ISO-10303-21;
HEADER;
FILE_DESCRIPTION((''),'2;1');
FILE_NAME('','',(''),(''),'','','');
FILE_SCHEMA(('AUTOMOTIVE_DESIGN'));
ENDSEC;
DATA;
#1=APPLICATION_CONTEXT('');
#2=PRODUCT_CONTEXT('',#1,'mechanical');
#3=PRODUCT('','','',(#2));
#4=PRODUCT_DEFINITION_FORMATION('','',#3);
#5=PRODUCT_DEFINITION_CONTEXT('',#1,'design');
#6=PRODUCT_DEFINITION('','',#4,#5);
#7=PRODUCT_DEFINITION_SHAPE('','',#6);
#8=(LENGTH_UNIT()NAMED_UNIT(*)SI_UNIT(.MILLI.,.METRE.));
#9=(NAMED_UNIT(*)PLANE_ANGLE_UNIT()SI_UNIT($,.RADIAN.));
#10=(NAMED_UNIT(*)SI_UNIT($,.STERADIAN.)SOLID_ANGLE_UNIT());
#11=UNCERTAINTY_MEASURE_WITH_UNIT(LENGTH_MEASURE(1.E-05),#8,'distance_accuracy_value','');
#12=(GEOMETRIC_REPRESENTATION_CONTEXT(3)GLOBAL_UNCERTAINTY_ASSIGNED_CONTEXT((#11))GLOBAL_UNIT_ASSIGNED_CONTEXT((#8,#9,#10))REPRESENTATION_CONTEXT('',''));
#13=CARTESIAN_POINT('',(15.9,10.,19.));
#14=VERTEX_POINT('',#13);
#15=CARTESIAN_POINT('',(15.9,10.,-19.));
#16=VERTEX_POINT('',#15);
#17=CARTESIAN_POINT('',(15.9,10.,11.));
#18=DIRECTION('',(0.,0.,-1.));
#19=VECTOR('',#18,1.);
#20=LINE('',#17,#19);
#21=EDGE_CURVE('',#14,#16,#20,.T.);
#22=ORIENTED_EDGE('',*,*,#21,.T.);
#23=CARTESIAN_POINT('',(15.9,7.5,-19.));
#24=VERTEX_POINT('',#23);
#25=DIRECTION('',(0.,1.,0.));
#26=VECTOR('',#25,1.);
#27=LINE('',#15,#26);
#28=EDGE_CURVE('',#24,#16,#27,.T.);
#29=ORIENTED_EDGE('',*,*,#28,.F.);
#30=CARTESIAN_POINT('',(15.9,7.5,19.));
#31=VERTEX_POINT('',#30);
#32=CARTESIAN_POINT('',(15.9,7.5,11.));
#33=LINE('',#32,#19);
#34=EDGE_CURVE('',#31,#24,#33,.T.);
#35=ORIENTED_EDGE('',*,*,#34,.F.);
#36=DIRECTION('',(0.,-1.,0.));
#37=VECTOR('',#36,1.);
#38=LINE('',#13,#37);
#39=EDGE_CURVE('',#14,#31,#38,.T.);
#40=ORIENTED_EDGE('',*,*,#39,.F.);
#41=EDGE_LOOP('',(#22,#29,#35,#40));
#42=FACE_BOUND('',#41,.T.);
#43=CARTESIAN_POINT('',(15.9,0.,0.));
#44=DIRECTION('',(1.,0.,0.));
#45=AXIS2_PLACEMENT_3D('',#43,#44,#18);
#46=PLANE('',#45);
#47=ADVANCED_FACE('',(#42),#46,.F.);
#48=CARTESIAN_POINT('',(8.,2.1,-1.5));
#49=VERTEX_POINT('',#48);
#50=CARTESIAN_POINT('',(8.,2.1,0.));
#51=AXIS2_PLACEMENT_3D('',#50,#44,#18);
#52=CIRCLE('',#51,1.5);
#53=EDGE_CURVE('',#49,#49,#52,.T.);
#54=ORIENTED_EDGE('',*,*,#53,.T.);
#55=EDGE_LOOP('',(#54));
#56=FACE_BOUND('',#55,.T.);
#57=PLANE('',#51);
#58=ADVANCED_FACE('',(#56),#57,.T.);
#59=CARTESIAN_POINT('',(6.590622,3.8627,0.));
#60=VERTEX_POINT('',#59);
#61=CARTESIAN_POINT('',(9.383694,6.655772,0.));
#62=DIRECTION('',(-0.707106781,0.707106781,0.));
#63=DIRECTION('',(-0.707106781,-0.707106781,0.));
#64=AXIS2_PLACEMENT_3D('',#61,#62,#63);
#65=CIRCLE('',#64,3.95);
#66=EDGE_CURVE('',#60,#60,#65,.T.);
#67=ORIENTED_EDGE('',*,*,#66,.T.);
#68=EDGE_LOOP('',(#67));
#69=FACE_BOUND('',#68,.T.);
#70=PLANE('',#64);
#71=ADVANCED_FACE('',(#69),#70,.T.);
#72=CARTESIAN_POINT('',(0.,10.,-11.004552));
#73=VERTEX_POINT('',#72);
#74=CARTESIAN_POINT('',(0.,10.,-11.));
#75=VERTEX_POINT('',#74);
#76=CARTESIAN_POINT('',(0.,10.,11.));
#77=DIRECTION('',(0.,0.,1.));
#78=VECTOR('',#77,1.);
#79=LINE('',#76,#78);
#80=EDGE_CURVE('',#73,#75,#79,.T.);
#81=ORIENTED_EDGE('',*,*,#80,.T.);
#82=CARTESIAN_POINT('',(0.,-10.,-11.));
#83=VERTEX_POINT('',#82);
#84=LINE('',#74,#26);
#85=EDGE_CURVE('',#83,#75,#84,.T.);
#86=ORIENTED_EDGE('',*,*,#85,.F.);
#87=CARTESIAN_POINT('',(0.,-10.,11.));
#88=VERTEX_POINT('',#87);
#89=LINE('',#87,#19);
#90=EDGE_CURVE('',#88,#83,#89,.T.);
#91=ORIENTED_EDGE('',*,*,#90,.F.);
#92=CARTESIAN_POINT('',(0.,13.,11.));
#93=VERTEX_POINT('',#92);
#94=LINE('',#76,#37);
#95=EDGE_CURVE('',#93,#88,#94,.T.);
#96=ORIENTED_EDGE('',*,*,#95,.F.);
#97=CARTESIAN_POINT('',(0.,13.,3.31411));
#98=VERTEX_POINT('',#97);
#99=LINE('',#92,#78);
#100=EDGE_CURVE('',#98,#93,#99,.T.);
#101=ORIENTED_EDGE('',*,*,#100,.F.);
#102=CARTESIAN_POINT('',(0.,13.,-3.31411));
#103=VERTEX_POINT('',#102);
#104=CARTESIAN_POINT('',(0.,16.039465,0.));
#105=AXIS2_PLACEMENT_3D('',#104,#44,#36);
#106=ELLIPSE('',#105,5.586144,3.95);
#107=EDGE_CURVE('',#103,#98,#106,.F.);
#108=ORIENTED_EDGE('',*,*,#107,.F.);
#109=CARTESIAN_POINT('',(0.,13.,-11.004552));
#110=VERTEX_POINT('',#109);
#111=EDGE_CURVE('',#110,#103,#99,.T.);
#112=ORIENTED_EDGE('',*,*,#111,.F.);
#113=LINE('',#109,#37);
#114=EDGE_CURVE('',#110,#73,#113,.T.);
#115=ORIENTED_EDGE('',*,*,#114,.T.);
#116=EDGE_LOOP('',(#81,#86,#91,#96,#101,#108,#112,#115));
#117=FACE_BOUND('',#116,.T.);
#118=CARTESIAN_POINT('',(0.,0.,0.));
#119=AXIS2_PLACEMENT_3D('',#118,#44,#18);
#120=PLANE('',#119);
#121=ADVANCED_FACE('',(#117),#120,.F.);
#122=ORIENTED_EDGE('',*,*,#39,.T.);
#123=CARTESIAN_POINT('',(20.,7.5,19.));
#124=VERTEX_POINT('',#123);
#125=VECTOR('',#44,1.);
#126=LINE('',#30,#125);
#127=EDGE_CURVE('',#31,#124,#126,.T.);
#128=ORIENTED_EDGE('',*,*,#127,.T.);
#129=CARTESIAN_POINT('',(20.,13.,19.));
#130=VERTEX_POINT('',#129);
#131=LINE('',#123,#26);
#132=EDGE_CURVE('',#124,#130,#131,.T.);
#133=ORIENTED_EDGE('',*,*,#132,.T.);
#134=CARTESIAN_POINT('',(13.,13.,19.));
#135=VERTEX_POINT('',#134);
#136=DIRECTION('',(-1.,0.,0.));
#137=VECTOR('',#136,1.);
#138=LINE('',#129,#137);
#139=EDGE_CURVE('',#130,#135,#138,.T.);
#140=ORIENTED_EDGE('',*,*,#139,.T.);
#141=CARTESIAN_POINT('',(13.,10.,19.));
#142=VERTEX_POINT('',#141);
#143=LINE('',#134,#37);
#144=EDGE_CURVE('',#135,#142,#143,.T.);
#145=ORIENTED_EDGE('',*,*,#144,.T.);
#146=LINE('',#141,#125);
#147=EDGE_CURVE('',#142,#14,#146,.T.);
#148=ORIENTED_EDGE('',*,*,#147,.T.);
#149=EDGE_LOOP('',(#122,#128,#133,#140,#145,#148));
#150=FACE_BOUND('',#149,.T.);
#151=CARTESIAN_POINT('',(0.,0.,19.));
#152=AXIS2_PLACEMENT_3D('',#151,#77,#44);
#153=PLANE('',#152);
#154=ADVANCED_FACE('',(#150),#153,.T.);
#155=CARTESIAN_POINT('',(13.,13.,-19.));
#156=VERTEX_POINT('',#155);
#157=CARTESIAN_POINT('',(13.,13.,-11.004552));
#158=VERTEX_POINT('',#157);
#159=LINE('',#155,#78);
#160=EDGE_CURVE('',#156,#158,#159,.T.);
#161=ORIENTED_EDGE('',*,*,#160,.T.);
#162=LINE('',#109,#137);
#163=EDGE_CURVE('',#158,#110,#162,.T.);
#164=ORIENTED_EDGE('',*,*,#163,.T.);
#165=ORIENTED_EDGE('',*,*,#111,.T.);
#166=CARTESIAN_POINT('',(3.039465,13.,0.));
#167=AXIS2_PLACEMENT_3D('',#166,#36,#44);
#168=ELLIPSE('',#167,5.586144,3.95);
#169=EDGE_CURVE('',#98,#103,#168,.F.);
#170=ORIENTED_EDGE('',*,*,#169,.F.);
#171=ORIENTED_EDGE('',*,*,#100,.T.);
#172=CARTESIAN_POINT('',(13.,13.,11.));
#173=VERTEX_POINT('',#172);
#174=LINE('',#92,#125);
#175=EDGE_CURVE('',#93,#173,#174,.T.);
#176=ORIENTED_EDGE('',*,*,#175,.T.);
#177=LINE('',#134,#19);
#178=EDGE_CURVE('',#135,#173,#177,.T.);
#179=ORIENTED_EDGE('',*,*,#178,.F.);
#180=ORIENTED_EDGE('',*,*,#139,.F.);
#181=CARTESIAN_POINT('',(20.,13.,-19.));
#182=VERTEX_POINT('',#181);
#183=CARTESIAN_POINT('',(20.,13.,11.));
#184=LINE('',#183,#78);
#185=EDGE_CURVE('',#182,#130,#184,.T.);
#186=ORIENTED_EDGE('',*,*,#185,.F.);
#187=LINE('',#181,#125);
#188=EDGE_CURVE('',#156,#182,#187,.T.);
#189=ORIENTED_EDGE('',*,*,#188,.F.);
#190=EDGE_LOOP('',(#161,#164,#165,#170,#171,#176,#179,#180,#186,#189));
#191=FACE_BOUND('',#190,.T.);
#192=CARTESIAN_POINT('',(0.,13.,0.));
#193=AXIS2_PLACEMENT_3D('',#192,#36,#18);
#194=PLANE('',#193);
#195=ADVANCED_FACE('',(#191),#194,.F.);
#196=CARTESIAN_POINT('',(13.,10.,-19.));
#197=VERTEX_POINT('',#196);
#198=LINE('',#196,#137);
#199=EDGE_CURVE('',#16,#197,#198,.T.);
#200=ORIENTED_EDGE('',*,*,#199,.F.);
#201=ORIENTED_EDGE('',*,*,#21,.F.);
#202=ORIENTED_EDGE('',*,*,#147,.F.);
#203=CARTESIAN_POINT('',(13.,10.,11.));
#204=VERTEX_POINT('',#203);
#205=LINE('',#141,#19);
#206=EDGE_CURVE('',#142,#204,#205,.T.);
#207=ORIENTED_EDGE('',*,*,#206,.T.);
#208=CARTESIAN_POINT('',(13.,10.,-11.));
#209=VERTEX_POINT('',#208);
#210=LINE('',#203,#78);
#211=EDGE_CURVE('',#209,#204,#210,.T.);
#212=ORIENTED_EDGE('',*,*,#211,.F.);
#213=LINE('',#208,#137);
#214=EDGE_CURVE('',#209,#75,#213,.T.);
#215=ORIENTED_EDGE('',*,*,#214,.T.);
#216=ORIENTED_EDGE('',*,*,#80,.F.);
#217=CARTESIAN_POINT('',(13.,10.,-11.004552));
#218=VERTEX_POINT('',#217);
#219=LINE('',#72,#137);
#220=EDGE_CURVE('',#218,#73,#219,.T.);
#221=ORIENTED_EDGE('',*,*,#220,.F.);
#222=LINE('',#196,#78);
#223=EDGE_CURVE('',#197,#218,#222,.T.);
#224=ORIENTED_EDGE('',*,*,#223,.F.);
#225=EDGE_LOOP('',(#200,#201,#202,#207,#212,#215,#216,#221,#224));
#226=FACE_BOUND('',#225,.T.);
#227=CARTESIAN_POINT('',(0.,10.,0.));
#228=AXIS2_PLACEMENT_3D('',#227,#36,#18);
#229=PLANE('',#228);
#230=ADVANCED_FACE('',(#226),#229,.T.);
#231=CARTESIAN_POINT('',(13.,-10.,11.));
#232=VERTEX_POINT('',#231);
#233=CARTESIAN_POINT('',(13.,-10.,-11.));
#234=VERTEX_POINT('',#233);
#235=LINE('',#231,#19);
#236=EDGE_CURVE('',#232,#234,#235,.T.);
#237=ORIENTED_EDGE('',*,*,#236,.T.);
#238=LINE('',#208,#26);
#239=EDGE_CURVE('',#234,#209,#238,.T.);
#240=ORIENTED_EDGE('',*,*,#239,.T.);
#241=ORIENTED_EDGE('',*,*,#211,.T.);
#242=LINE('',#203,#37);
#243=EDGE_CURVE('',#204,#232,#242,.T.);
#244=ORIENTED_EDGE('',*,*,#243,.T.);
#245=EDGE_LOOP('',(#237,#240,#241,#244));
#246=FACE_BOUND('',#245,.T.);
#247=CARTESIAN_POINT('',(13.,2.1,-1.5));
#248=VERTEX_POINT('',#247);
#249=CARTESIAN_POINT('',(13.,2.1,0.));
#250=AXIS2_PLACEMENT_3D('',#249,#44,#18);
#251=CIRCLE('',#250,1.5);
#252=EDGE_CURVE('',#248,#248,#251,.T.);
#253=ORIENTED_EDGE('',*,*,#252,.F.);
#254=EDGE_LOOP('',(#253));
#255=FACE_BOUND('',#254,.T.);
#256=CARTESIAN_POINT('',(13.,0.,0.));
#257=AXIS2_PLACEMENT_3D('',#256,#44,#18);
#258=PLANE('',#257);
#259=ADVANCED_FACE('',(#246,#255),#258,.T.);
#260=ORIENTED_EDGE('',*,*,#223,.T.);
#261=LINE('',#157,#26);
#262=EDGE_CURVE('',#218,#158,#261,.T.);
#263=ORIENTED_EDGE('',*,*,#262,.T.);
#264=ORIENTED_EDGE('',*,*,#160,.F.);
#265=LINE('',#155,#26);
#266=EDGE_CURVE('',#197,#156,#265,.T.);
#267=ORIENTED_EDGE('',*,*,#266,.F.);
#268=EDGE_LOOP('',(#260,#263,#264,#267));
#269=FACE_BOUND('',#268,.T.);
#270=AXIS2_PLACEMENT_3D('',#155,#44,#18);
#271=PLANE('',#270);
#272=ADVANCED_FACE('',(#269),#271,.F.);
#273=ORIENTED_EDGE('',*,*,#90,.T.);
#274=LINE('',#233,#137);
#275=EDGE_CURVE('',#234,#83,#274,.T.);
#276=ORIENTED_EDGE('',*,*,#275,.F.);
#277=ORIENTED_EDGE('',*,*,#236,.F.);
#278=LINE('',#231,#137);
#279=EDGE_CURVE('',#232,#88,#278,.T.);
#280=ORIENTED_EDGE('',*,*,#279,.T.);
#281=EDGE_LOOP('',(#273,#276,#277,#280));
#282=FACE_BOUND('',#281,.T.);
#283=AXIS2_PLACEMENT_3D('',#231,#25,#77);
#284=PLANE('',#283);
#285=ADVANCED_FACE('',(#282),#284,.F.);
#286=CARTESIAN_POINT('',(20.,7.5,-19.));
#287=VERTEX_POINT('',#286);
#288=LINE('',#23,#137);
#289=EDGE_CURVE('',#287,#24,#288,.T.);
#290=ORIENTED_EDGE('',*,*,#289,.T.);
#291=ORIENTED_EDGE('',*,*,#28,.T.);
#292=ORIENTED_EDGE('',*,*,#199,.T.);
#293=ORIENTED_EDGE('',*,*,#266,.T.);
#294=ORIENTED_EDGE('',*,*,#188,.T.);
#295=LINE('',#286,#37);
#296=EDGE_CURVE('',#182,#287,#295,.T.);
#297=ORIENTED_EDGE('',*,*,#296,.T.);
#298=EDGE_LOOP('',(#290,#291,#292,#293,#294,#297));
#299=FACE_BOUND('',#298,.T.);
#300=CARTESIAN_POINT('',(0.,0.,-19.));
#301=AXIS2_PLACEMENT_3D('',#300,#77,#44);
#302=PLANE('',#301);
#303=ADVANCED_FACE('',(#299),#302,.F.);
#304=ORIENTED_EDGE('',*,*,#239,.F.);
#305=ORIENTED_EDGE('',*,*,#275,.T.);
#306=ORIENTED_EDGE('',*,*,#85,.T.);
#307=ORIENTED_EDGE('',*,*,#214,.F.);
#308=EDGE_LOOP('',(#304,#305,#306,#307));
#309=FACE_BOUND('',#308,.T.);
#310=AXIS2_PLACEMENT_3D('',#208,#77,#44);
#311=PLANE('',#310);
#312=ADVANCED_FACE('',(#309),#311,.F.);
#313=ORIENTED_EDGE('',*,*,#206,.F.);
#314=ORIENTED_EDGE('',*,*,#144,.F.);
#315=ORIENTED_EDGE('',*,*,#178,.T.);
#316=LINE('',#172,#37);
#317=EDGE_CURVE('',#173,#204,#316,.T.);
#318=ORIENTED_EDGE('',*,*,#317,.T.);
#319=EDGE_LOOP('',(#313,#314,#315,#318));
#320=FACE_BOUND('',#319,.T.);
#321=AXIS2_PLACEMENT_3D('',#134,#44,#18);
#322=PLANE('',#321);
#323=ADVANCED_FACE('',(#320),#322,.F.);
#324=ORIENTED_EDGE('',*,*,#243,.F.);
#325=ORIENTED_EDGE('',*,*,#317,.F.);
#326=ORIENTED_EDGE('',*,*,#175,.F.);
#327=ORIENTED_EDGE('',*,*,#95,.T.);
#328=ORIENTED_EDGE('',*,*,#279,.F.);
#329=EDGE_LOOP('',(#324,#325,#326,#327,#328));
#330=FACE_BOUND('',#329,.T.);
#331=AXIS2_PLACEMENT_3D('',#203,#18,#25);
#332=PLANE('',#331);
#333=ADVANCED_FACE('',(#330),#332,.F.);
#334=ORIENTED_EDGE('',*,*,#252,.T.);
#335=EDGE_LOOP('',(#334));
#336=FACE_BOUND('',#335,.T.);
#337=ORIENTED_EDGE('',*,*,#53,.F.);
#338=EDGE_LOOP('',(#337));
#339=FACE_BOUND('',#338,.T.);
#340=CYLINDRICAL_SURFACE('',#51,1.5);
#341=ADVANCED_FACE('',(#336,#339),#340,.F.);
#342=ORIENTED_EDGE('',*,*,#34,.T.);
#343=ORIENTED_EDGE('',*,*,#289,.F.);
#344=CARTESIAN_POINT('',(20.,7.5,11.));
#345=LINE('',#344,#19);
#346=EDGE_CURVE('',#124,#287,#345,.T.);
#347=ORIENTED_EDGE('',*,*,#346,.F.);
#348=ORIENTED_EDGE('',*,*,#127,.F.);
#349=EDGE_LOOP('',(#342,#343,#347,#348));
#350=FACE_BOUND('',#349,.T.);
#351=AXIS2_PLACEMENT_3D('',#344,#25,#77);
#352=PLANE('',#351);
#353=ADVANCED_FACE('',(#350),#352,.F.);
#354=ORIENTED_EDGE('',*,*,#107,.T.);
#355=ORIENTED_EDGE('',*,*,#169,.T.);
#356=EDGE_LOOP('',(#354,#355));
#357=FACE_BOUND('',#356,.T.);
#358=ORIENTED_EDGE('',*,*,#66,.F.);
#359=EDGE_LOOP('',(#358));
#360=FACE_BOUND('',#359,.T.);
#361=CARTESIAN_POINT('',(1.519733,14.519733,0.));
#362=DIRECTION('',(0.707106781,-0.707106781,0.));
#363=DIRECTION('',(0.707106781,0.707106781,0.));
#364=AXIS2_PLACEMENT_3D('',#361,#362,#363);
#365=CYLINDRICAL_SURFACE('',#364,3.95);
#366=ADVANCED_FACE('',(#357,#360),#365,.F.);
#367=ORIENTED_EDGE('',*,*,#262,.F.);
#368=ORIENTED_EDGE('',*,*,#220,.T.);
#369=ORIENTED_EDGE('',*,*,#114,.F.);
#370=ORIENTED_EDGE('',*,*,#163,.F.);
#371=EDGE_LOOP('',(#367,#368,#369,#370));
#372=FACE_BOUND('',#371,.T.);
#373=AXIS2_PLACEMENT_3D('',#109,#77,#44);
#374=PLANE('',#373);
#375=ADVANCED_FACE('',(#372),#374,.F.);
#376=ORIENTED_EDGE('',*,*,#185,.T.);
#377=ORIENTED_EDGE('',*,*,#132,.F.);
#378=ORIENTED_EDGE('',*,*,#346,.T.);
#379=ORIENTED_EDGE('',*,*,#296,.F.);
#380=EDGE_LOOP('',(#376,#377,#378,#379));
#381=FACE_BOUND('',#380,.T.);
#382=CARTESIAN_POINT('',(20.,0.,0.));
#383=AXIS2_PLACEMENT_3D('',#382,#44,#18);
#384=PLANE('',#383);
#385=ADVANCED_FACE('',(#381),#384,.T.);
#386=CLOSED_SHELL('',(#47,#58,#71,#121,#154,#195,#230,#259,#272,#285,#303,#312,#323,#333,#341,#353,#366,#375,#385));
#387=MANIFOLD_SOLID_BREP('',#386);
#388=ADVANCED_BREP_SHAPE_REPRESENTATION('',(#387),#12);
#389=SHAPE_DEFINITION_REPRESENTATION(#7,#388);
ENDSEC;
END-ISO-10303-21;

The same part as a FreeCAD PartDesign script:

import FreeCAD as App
import Part
import Sketcher
from FreeCAD import Vector

doc = App.newDocument("Part")
body = doc.addObject("PartDesign::Body", "Body")

sketch1 = doc.addObject("Sketcher::SketchObject", "Sketch")
body.addObject(sketch1)
sketch1.AttachmentSupport = (doc.YZ_Plane, [""])
sketch1.MapMode = "FlatFace"
sketch1.addGeometry([
    Part.LineSegment(Vector(10, 11, 0), Vector(-10, 11, 0)),
    Part.LineSegment(Vector(-10, 11, 0), Vector(-10, -11, 0)),
    Part.LineSegment(Vector(-10, -11, 0), Vector(10, -11, 0)),
    Part.LineSegment(Vector(10, -11, 0), Vector(10, 11, 0)),
], False)
sketch1.addConstraint([
    Sketcher.Constraint("Coincident", 0, 2, 1, 1),
    Sketcher.Constraint("Coincident", 1, 2, 2, 1),
    Sketcher.Constraint("Coincident", 2, 2, 3, 1),
    Sketcher.Constraint("Coincident", 3, 2, 0, 1),
    Sketcher.Constraint("Horizontal", 0),
    Sketcher.Constraint("Vertical", 1),
    Sketcher.Constraint("Horizontal", 2),
    Sketcher.Constraint("Vertical", 3),
    Sketcher.Constraint("Symmetric", 0, 2, 2, 2, -1, 1),
    Sketcher.Constraint("DistanceX", 0, 2, 0, 1, 20.0),
    Sketcher.Constraint("DistanceY", 1, 2, 1, 1, 22.0),
])
pad1 = doc.addObject("PartDesign::Pad", "Pad")
body.addObject(pad1)
pad1.Profile = sketch1
pad1.Length = 13

sketch2 = doc.addObject("Sketcher::SketchObject", "Sketch001")
body.addObject(sketch2)
sketch2.AttachmentSupport = (doc.XZ_Plane, [""])
sketch2.MapMode = "FlatFace"
sketch2.AttachmentOffset = App.Placement(Vector(0, 0, -10), App.Rotation())
sketch2.addGeometry([
    Part.LineSegment(Vector(0, -11, 0), Vector(0, 11, 0)),
    Part.LineSegment(Vector(0, 11, 0), Vector(16, 11, 0)),
    Part.LineSegment(Vector(16, 11, 0), Vector(16, -11, 0)),
    Part.LineSegment(Vector(16, -11, 0), Vector(0, -11, 0)),
], False)
sketch2.addConstraint([
    Sketcher.Constraint("Coincident", 0, 2, 1, 1),
    Sketcher.Constraint("Coincident", 1, 2, 2, 1),
    Sketcher.Constraint("Coincident", 2, 2, 3, 1),
    Sketcher.Constraint("Coincident", 3, 2, 0, 1),
    Sketcher.Constraint("Vertical", 0),
    Sketcher.Constraint("Horizontal", 1),
    Sketcher.Constraint("Vertical", 2),
    Sketcher.Constraint("Horizontal", 3),
    Sketcher.Constraint("PointOnObject", 0, 2, -2),
    Sketcher.Constraint("DistanceX", 1, 1, 1, 2, 15.9),
    Sketcher.Constraint("DistanceY", -1, 1, 0, 2, 11.0),
    Sketcher.Constraint("DistanceY", 0, 1, 0, 2, 22.004552),
])
pad2 = doc.addObject("PartDesign::Pad", "Pad001")
body.addObject(pad2)
pad2.Profile = sketch2
pad2.Length = 3
pad2.Reversed = True

sketch3 = doc.addObject("Sketcher::SketchObject", "Sketch002")
body.addObject(sketch3)
sketch3.AttachmentSupport = (doc.YZ_Plane, [""])
sketch3.MapMode = "FlatFace"
sketch3.AttachmentOffset = App.Placement(Vector(0, 0, 15.9), App.Rotation())
sketch3.addGeometry([
    Part.LineSegment(Vector(13, 11, 0), Vector(8, 11, 0)),
    Part.LineSegment(Vector(8, 11, 0), Vector(8, -11, 0)),
    Part.LineSegment(Vector(8, -11, 0), Vector(13, -11, 0)),
    Part.LineSegment(Vector(13, -11, 0), Vector(13, 11, 0)),
], False)
sketch3.addConstraint([
    Sketcher.Constraint("Coincident", 0, 2, 1, 1),
    Sketcher.Constraint("Coincident", 1, 2, 2, 1),
    Sketcher.Constraint("Coincident", 2, 2, 3, 1),
    Sketcher.Constraint("Coincident", 3, 2, 0, 1),
    Sketcher.Constraint("Horizontal", 0),
    Sketcher.Constraint("Vertical", 1),
    Sketcher.Constraint("Horizontal", 2),
    Sketcher.Constraint("Vertical", 3),
    Sketcher.Constraint("DistanceY", 1, 2, 1, 1, 22.0),
    Sketcher.Constraint("DistanceX", 0, 2, 0, 1, 5.5),
    Sketcher.Constraint("DistanceY", -1, 1, 0, 2, 11.0),
    Sketcher.Constraint("DistanceX", -1, 1, 2, 2, 13.0),
])
pad3 = doc.addObject("PartDesign::Pad", "Pad002")
body.addObject(pad3)
pad3.Profile = sketch3
pad3.Length = 4.1

sketch4 = doc.addObject("Sketcher::SketchObject", "Sketch003")
body.addObject(sketch4)
sketch4.AttachmentSupport = (doc.XY_Plane, [""])
sketch4.MapMode = "FlatFace"
sketch4.AttachmentOffset = App.Placement(Vector(0, 0, 11), App.Rotation())
sketch4.addGeometry([
    Part.LineSegment(Vector(13, 13, 0), Vector(13, 10, 0)),
    Part.LineSegment(Vector(13, 10, 0), Vector(15.9, 10, 0)),
    Part.LineSegment(Vector(15.9, 10, 0), Vector(15.9, 7.5, 0)),
    Part.LineSegment(Vector(15.9, 7.5, 0), Vector(20, 7.5, 0)),
    Part.LineSegment(Vector(20, 7.5, 0), Vector(20, 13, 0)),
    Part.LineSegment(Vector(20, 13, 0), Vector(13, 13, 0)),
], False)
sketch4.addConstraint([
    Sketcher.Constraint("Coincident", 0, 2, 1, 1),
    Sketcher.Constraint("Coincident", 1, 2, 2, 1),
    Sketcher.Constraint("Coincident", 2, 2, 3, 1),
    Sketcher.Constraint("Coincident", 3, 2, 4, 1),
    Sketcher.Constraint("Coincident", 4, 2, 5, 1),
    Sketcher.Constraint("Coincident", 5, 2, 0, 1),
    Sketcher.Constraint("Vertical", 0),
    Sketcher.Constraint("Horizontal", 1),
    Sketcher.Constraint("Vertical", 2),
    Sketcher.Constraint("Horizontal", 3),
    Sketcher.Constraint("Vertical", 4),
    Sketcher.Constraint("Horizontal", 5),
    Sketcher.Constraint("DistanceX", 5, 2, 5, 1, 7.0),
    Sketcher.Constraint("DistanceY", 0, 2, 0, 1, 3.0),
    Sketcher.Constraint("DistanceX", 1, 1, 1, 2, 2.9),
    Sketcher.Constraint("DistanceY", 2, 2, 2, 1, 2.5),
    Sketcher.Constraint("DistanceX", -1, 1, 0, 2, 13.0),
    Sketcher.Constraint("DistanceY", -1, 1, 0, 2, 10.0),
])
pad4 = doc.addObject("PartDesign::Pad", "Pad003")
body.addObject(pad4)
pad4.Profile = sketch4
pad4.Length = 8

sketch5 = doc.addObject("Sketcher::SketchObject", "Sketch004")
body.addObject(sketch5)
sketch5.AttachmentSupport = (doc.XY_Plane, [""])
sketch5.MapMode = "FlatFace"
sketch5.AttachmentOffset = App.Placement(Vector(0, 0, -11), App.Rotation())
sketch5.addGeometry([
    Part.LineSegment(Vector(13, 10, 0), Vector(13, 13, 0)),
    Part.LineSegment(Vector(13, 13, 0), Vector(20, 13, 0)),
    Part.LineSegment(Vector(20, 13, 0), Vector(20, 7.5, 0)),
    Part.LineSegment(Vector(20, 7.5, 0), Vector(15.9, 7.5, 0)),
    Part.LineSegment(Vector(15.9, 7.5, 0), Vector(15.9, 10, 0)),
    Part.LineSegment(Vector(15.9, 10, 0), Vector(13, 10, 0)),
], False)
sketch5.addConstraint([
    Sketcher.Constraint("Coincident", 0, 2, 1, 1),
    Sketcher.Constraint("Coincident", 1, 2, 2, 1),
    Sketcher.Constraint("Coincident", 2, 2, 3, 1),
    Sketcher.Constraint("Coincident", 3, 2, 4, 1),
    Sketcher.Constraint("Coincident", 4, 2, 5, 1),
    Sketcher.Constraint("Coincident", 5, 2, 0, 1),
    Sketcher.Constraint("Vertical", 0),
    Sketcher.Constraint("Horizontal", 1),
    Sketcher.Constraint("Vertical", 2),
    Sketcher.Constraint("Horizontal", 3),
    Sketcher.Constraint("Vertical", 4),
    Sketcher.Constraint("Horizontal", 5),
    Sketcher.Constraint("DistanceX", 1, 1, 1, 2, 7.0),
    Sketcher.Constraint("DistanceY", 0, 1, 0, 2, 3.0),
    Sketcher.Constraint("DistanceX", 3, 2, 3, 1, 4.1),
    Sketcher.Constraint("DistanceY", 2, 2, 2, 1, 5.5),
    Sketcher.Constraint("DistanceX", -1, 1, 0, 2, 13.0),
    Sketcher.Constraint("DistanceY", -1, 1, 0, 2, 13.0),
])
pad5 = doc.addObject("PartDesign::Pad", "Pad004")
body.addObject(pad5)
pad5.Profile = sketch5
pad5.Length = 8
pad5.Reversed = True

sketch6 = doc.addObject("Sketcher::SketchObject", "Sketch005")
body.addObject(sketch6)
sketch6.AttachmentSupport = (doc.YZ_Plane, [""])
sketch6.MapMode = "FlatFace"
sketch6.AttachmentOffset = App.Placement(Vector(0, 0, 13), App.Rotation())
sketch6.addGeometry(Part.Circle(Vector(2.1, 0, 0), Vector(0, 0, 1), 1.5), False)
sketch6.addConstraint([
    Sketcher.Constraint("PointOnObject", 0, 3, -1),
    Sketcher.Constraint("Diameter", 0, 3.0),
    Sketcher.Constraint("DistanceX", -1, 1, 0, 3, 2.1),
])
pocket1 = doc.addObject("PartDesign::Pocket", "Pocket")
body.addObject(pocket1)
pocket1.Profile = sketch6
pocket1.Length = 5

sketch7 = doc.addObject("Sketcher::SketchObject", "Sketch006")
body.addObject(sketch7)
sketch7.Placement = App.Placement(Vector(-5, 5, 0), App.Rotation(Vector(0, 0, -1), Vector(-0.707106781, -0.707106781, 0), Vector(-0.707106781, 0.707106781, 0), "ZXY"))
sketch7.addGeometry(Part.Circle(Vector(0, -11.3, 0), Vector(0, 0, 1), 4), False)
sketch7.addConstraint([
    Sketcher.Constraint("PointOnObject", 0, 3, -2),
    Sketcher.Constraint("Diameter", 0, 7.9),
    Sketcher.Constraint("DistanceY", 0, 3, -1, 1, 11.341615),
])
pocket2 = doc.addObject("PartDesign::Pocket", "Pocket001")
body.addObject(pocket2)
pocket2.Profile = sketch7
pocket2.Type = "TwoLengths"
pocket2.Length = 35.799425
pocket2.Length2 = 9
pocket2.Reversed = True

doc.recompute()
